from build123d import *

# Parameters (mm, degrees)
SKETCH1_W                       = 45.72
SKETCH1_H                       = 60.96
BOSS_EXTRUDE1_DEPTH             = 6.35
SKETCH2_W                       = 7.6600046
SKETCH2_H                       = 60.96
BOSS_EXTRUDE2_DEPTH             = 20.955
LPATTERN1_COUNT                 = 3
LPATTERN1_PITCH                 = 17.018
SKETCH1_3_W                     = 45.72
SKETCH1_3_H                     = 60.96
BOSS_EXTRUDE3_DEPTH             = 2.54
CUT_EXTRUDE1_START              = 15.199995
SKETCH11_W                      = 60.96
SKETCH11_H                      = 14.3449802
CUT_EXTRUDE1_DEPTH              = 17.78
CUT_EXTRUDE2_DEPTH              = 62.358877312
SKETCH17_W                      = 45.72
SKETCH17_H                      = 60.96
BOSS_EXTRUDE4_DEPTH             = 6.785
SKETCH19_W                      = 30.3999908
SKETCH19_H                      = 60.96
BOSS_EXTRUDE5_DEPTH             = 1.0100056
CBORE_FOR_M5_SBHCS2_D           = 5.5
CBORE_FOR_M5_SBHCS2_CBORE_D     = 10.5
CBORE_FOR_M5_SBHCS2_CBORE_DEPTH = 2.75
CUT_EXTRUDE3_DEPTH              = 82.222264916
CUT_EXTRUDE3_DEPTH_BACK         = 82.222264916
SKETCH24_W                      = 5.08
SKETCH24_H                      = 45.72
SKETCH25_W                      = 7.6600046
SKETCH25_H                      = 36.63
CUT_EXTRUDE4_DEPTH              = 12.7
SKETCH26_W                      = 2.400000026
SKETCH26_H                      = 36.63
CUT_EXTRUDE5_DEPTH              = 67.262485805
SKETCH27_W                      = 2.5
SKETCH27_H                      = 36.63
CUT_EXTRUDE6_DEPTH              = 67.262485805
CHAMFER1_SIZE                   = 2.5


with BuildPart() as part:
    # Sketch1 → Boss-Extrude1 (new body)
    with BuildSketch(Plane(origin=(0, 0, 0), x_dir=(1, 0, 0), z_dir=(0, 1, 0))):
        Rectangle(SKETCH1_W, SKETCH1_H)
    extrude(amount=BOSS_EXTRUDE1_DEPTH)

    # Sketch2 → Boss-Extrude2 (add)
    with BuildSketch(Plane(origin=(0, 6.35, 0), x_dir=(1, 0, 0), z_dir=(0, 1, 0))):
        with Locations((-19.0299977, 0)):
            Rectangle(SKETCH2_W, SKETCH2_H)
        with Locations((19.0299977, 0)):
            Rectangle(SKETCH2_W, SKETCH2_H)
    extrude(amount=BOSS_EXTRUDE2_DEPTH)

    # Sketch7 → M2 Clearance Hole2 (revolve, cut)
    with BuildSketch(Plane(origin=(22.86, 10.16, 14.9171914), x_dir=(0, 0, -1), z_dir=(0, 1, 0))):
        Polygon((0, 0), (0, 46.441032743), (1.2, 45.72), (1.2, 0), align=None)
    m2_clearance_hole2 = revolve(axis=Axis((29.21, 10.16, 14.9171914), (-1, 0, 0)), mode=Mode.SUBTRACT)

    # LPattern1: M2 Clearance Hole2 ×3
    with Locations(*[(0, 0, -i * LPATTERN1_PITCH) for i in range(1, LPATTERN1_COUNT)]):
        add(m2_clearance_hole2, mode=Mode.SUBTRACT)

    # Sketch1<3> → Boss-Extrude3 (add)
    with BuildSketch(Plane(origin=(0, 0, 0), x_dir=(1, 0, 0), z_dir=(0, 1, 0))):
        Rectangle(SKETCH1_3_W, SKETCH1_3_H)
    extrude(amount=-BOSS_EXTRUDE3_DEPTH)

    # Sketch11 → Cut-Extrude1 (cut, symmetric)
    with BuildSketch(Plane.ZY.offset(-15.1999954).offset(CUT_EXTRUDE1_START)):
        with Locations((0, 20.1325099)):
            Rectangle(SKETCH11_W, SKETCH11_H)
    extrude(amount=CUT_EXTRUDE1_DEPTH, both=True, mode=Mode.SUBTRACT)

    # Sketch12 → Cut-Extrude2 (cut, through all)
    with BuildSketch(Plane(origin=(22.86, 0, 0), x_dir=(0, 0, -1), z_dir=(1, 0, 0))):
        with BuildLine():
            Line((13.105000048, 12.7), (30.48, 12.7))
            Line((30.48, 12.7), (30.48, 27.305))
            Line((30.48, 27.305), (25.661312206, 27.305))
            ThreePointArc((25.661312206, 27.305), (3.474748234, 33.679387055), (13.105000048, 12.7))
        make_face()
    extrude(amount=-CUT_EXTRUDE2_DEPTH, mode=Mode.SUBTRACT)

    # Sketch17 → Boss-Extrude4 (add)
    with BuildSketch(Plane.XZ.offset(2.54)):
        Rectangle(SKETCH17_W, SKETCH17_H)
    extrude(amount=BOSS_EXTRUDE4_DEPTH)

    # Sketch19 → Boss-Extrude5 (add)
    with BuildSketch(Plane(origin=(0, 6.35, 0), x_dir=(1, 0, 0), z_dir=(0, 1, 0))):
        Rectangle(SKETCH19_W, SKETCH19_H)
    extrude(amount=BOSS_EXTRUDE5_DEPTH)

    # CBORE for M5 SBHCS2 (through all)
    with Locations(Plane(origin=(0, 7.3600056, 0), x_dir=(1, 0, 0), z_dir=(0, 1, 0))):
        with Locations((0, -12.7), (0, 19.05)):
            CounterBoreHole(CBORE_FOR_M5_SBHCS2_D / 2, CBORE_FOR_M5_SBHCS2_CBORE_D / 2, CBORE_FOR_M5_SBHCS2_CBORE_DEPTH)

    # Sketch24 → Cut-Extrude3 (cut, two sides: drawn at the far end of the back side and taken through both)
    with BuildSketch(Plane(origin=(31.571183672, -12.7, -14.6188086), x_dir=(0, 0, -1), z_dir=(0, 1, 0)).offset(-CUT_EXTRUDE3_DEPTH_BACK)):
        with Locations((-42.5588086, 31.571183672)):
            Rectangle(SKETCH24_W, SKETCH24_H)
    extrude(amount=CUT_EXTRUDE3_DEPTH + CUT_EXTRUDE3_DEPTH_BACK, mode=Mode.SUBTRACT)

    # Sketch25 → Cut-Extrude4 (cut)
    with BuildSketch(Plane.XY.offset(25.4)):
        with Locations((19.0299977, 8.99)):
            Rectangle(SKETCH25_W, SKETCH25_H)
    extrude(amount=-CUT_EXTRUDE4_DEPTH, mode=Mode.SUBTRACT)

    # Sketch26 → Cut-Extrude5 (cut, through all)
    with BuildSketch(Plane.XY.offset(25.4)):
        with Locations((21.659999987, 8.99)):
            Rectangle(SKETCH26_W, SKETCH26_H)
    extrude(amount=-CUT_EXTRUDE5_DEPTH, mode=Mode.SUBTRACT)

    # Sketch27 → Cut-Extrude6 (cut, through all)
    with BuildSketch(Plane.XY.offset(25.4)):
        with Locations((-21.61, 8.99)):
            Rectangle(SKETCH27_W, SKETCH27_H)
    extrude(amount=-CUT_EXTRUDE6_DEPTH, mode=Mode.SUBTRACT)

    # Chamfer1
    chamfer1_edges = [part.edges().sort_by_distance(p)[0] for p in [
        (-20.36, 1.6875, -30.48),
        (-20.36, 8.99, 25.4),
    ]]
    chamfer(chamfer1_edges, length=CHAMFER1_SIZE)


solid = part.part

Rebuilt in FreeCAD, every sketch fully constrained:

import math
import FreeCAD as App
import Part
import Sketcher
from FreeCAD import Vector
Q = App.Units.Quantity


def edges_at(feature, points):
    """Names of the edges that pass closest to the given points."""
    edges = feature.Shape.Edges
    near = lambda p: min(range(len(edges)), key=lambda i: edges[i].distToShape(Part.Vertex(*p))[0])
    return sorted({f"Edge{near(p) + 1}" for p in points})


def add_polygon(sketch, points):
    """Adds a closed chain of lines whose ends are joined by coincident constraints."""
    first, n = sketch.GeometryCount, len(points)
    for a, b in zip(points, points[1:] + points[:1]):
        sketch.addGeometry(Part.LineSegment(App.Vector(*a, 0), App.Vector(*b, 0)), False)
    for i in range(n):
        sketch.addConstraint(Sketcher.Constraint("Coincident", first + i, 2, first + (i + 1) % n, 1))

doc = App.newDocument("Part")
params = doc.addObject("Spreadsheet::Sheet", "Params")
for row, (alias, value) in enumerate([
    ("sketch1_width", "1.8 in"),
    ("sketch1_height", "2.4 in"),
    ("pad1_length", "0.25 in"),
    ("sketch2_height", "2.4 in"),
    ("pad2_length", "0.825 in"),
    ("sketch3_width", "1.8 in"),
    ("groove_angle", "360 deg"),
    ("linearpattern_pitch", "0.67 in"),
    ("sketch4_width", "1.8 in"),
    ("sketch4_height", "2.4 in"),
    ("pad3_length", "0.1 in"),
    ("sketch5_height", "2.4 in"),
    ("pocket1_length", "1.4 in"),
    ("sketch6_radius", "0.5 in"),
    ("sketch6_width", "0.575 in"),
    ("sketch7_width", "1.8 in"),
    ("sketch7_height", "2.4 in"),
    ("pad4_length", "6.785 mm"),
    ("sketch8_height", "2.4 in"),
    ("pad5_length", "1.010006 mm"),
    ("hole_diameter", "5.5 mm"),
    ("hole_cbore_diameter", "10.5 mm"),
    ("hole_cbore_depth", "2.75 mm"),
    ("sketch10_width", "1.8 in"),
    ("sketch10_height", "0.2 in"),
    ("pocket4_length", "0.5 in"),
    ("chamfer_size", "2.5 mm"),
], start=1):
    params.set(f"A{row}", alias)
    params.set(f"B{row}", "=" + value)
    params.setAlias(f"B{row}", alias)

body = doc.addObject("PartDesign::Body", "Body")

# Sketch on XZ plane
sketch1 = body.newObject("Sketcher::SketchObject", "Sketch")
sketch1.AttachmentSupport = (doc.getObject("XZ_Plane"), [""])
sketch1.MapMode = "FlatFace"
add_polygon(sketch1, [(-23, -30), (-23, 30), (23, 30), (23, -30)])  # lines 0-3
sketch1.addConstraint([
    Sketcher.Constraint("Vertical", 0),
    Sketcher.Constraint("Horizontal", 1),
    Sketcher.Constraint("Vertical", 2),
    Sketcher.Constraint("Horizontal", 3),
    Sketcher.Constraint("Symmetric", 0, 2, 2, 2, -1, 1),
    Sketcher.Constraint("DistanceX", 1, 1, 1, 2, Q("1.8 in")),
    Sketcher.Constraint("DistanceY", 0, 1, 0, 2, Q("2.4 in")),
])
sketch1.setExpression("Constraints[9]", "Params.sketch1_width")
sketch1.setExpression("Constraints[10]", "Params.sketch1_height")
pad1 = body.newObject("PartDesign::Pad", "Pad")
pad1.Profile = sketch1
pad1.setExpression("Length", "Params.pad1_length")
pad1.Reversed = True

# Sketch on XZ plane
sketch2 = body.newObject("Sketcher::SketchObject", "Sketch001")
sketch2.AttachmentSupport = (doc.getObject("XZ_Plane"), [""])
sketch2.MapMode = "FlatFace"
sketch2.AttachmentOffset = App.Placement(Vector(0, 0, -0.25 * 25.4), App.Rotation())
add_polygon(sketch2, [(-23, -30), (-23, 30), (-15, 30), (-15, -30)])  # lines 0-3
add_polygon(sketch2, [(15, -30), (15, 30), (23, 30), (23, -30)])  # lines 4-7
sketch2.addConstraint([
    Sketcher.Constraint("Vertical", 0),
    Sketcher.Constraint("Horizontal", 1),
    Sketcher.Constraint("Vertical", 2),
    Sketcher.Constraint("Horizontal", 3),
    Sketcher.Constraint("Vertical", 4),
    Sketcher.Constraint("Horizontal", 5),
    Sketcher.Constraint("Vertical", 6),
    Sketcher.Constraint("Horizontal", 7),
    Sketcher.Constraint("Symmetric", 2, 2, 4, 2, -1, 1),
    Sketcher.Constraint("Symmetric", 0, 2, 6, 2, -1, 1),
    Sketcher.Constraint("Horizontal", 1, 2, 4, 2),
    Sketcher.Constraint("DistanceY", 0, 1, 0, 2, Q("2.4 in")),
    Sketcher.Constraint("DistanceX", 0, 2, -1, 1, Q("0.9 in")),
    Sketcher.Constraint("DistanceX", 1, 1, 1, 2, 7.660005),
])
sketch2.setExpression("Constraints[19]", "Params.sketch2_height")
pad2 = body.newObject("PartDesign::Pad", "Pad001")
pad2.Profile = sketch2
pad2.setExpression("Length", "Params.pad2_length")
pad2.Reversed = True

# Sketch on XZ plane
sketch3 = body.newObject("Sketcher::SketchObject", "Sketch002")
sketch3.AttachmentSupport = (doc.getObject("XZ_Plane"), [""])
sketch3.MapMode = "FlatFace"
sketch3.AttachmentOffset = App.Placement(Vector(0, 0, -0.4 * 25.4), App.Rotation())
add_polygon(sketch3, [(-23.6, 14.9), (22.9, 14.9), (22.9, 13.7), (-22.9, 13.7)])  # lines 0-3
sketch3.addGeometry(Part.LineSegment(Vector(22.9, 14.9, 0), Vector(-23.6, 14.9, 0)), True)  # axis
sketch3.addConstraint([
    Sketcher.Constraint("Horizontal", 0),
    Sketcher.Constraint("Vertical", 1),
    Sketcher.Constraint("Horizontal", 2),
    Sketcher.Constraint("Horizontal", 4),
    Sketcher.Constraint("Coincident", 4, 1, 0, 2),
    Sketcher.Constraint("Equal", 0, 4),
    Sketcher.Constraint("DistanceX", 2, 2, 2, 1, Q("1.8 in")),
    Sketcher.Constraint("Angle", 3, Q("121 deg")),
    Sketcher.Constraint("DistanceX", -1, 1, 0, 2, Q("0.9 in")),
    Sketcher.Constraint("DistanceY", 1, 2, 1, 1, 1.2),
    Sketcher.Constraint("DistanceY", -1, 1, 0, 2, 14.917191),
])
sketch3.setExpression("Constraints[10]", "Params.sketch3_width")
groove = body.newObject("PartDesign::Groove", "Groove")
groove.Profile = sketch3
groove.ReferenceAxis = (sketch3, ["Axis0"])
groove.setExpression("Angle", "Params.groove_angle")
doc.recompute()

linearpattern = body.newObject("PartDesign::LinearPattern", "LinearPattern")
linearpattern.Originals = [groove]
linearpattern.Direction = (doc.getObject("Z_Axis"), [""])
linearpattern.Mode = "offset"
linearpattern.setExpression("Offset", "Params.linearpattern_pitch")
linearpattern.Occurrences = 3
linearpattern.Reversed = True
body.Tip = linearpattern

# Sketch on XZ plane
sketch4 = body.newObject("Sketcher::SketchObject", "Sketch003")
sketch4.AttachmentSupport = (doc.getObject("XZ_Plane"), [""])
sketch4.MapMode = "FlatFace"
add_polygon(sketch4, [(-23, -30), (-23, 30), (23, 30), (23, -30)])  # lines 0-3
sketch4.addConstraint([
    Sketcher.Constraint("Vertical", 0),
    Sketcher.Constraint("Horizontal", 1),
    Sketcher.Constraint("Vertical", 2),
    Sketcher.Constraint("Horizontal", 3),
    Sketcher.Constraint("Symmetric", 0, 2, 2, 2, -1, 1),
    Sketcher.Constraint("DistanceX", 1, 1, 1, 2, Q("1.8 in")),
    Sketcher.Constraint("DistanceY", 0, 1, 0, 2, Q("2.4 in")),
])
sketch4.setExpression("Constraints[9]", "Params.sketch4_width")
sketch4.setExpression("Constraints[10]", "Params.sketch4_height")
pad3 = body.newObject("PartDesign::Pad", "Pad002")
pad3.Profile = sketch4
pad3.setExpression("Length", "Params.pad3_length")

# Sketch on YZ plane
sketch5 = body.newObject("Sketcher::SketchObject", "Sketch004")
sketch5.AttachmentSupport = (doc.getObject("YZ_Plane"), [""])
sketch5.MapMode = "FlatFace"
sketch5.AttachmentOffset = App.Placement(Vector(0, 0, 0 * 25.4), App.Rotation())
add_polygon(sketch5, [(27, -30), (13, -30), (13, 30), (27, 30)])  # lines 0-3
sketch5.addConstraint([
    Sketcher.Constraint("Horizontal", 0),
    Sketcher.Constraint("Vertical", 1),
    Sketcher.Constraint("Horizontal", 2),
    Sketcher.Constraint("Vertical", 3),
    Sketcher.Constraint("DistanceY", 1, 1, 1, 2, Q("2.4 in")),
    Sketcher.Constraint("DistanceY", 0, 2, -1, 1, Q("1.2 in")),
    Sketcher.Constraint("DistanceX", -1, 1, 2, 2, Q("1.075 in")),
    Sketcher.Constraint("DistanceX", 0, 2, 0, 1, 14.34498),
])
sketch5.setExpression("Constraints[8]", "Params.sketch5_height")
pocket1 = body.newObject("PartDesign::Pocket", "Pocket")
pocket1.Profile = sketch5
pocket1.setExpression("Length", "Params.pocket1_length")
pocket1.Midplane = True

# Sketch on YZ plane
sketch6 = body.newObject("Sketcher::SketchObject", "Sketch005")
sketch6.AttachmentSupport = (doc.getObject("YZ_Plane"), [""])
sketch6.MapMode = "FlatFace"
sketch6.AttachmentOffset = App.Placement(Vector(0, 0, 0.9 * 25.4), App.Rotation())
sketch6.addGeometry([
    Part.LineSegment(Vector(12.7, -13.1, 0), Vector(12.7, -30.5, 0)),
    Part.LineSegment(Vector(12.7, -30.5, 0), Vector(27.3, -30.5, 0)),
    Part.LineSegment(Vector(27.3, -30.5, 0), Vector(27.3, -25.7, 0)),
    Part.ArcOfCircle(Part.Circle(Vector(25.4, -13.1, 0), Vector(0, 0, 1), 12.7), math.radians(-81), math.radians(180)),
], False)
sketch6.addConstraint([
    Sketcher.Constraint("Coincident", 0, 2, 1, 1),
    Sketcher.Constraint("Coincident", 1, 2, 2, 1),
    Sketcher.Constraint("Coincident", 2, 2, 3, 1),
    Sketcher.Constraint("Tangent", 3, 2, 0, 1),
    Sketcher.Constraint("Vertical", 0),
    Sketcher.Constraint("Horizontal", 1),
    Sketcher.Constraint("Vertical", 2),
    Sketcher.Constraint("Radius", 3, Q("0.5 in")),
    Sketcher.Constraint("DistanceX", -1, 1, 3, 3, Q("1 in")),
    Sketcher.Constraint("DistanceY", 0, 2, -1, 1, Q("1.2 in")),
    Sketcher.Constraint("DistanceX", 1, 1, 1, 2, Q("0.575 in")),
    Sketcher.Constraint("DistanceY", 0, 2, 0, 1, 17.375),
])
sketch6.setExpression("Constraints[7]", "Params.sketch6_radius")
sketch6.setExpression("Constraints[10]", "Params.sketch6_width")
pocket2 = body.newObject("PartDesign::Pocket", "Pocket001")
pocket2.Profile = sketch6
pocket2.Type = "ThroughAll"

# Sketch on XZ plane
sketch7 = body.newObject("Sketcher::SketchObject", "Sketch006")
sketch7.AttachmentSupport = (doc.getObject("XZ_Plane"), [""])
sketch7.MapMode = "FlatFace"
sketch7.AttachmentOffset = App.Placement(Vector(0, 0, 0.1 * 25.4), App.Rotation())
add_polygon(sketch7, [(-23, 30), (-23, -30), (23, -30), (23, 30)])  # lines 0-3
sketch7.addConstraint([
    Sketcher.Constraint("Vertical", 0),
    Sketcher.Constraint("Horizontal", 1),
    Sketcher.Constraint("Vertical", 2),
    Sketcher.Constraint("Horizontal", 3),
    Sketcher.Constraint("Symmetric", 0, 2, 2, 2, -1, 1),
    Sketcher.Constraint("DistanceX", 1, 1, 1, 2, Q("1.8 in")),
    Sketcher.Constraint("DistanceY", 0, 2, 0, 1, Q("2.4 in")),
])
sketch7.setExpression("Constraints[9]", "Params.sketch7_width")
sketch7.setExpression("Constraints[10]", "Params.sketch7_height")
pad4 = body.newObject("PartDesign::Pad", "Pad003")
pad4.Profile = sketch7
pad4.setExpression("Length", "Params.pad4_length")

# Sketch on XZ plane
sketch8 = body.newObject("Sketcher::SketchObject", "Sketch007")
sketch8.AttachmentSupport = (doc.getObject("XZ_Plane"), [""])
sketch8.MapMode = "FlatFace"
sketch8.AttachmentOffset = App.Placement(Vector(0, 0, -0.25 * 25.4), App.Rotation())
add_polygon(sketch8, [(-15, -30), (-15, 30), (15, 30), (15, -30)])  # lines 0-3
sketch8.addConstraint([
    Sketcher.Constraint("Vertical", 0),
    Sketcher.Constraint("Horizontal", 1),
    Sketcher.Constraint("Vertical", 2),
    Sketcher.Constraint("Horizontal", 3),
    Sketcher.Constraint("Symmetric", 0, 2, 2, 2, -1, 1),
    Sketcher.Constraint("DistanceY", 0, 1, 0, 2, Q("2.4 in")),
    Sketcher.Constraint("DistanceX", 1, 1, 1, 2, 30.399991),
])
sketch8.setExpression("Constraints[9]", "Params.sketch8_height")
pad5 = body.newObject("PartDesign::Pad", "Pad004")
pad5.Profile = sketch8
pad5.setExpression("Length", "Params.pad5_length")
pad5.Reversed = True

# Sketch on XZ plane
sketch9 = body.newObject("Sketcher::SketchObject", "Sketch008")
sketch9.AttachmentSupport = (doc.getObject("XZ_Plane"), [""])
sketch9.MapMode = "FlatFace"
sketch9.AttachmentOffset = App.Placement(Vector(0, 0, -7.360006), App.Rotation())
sketch9.addGeometry([
    Part.Circle(Vector(0, 12.7, 0), Vector(0, 0, 1), 2.8),
    Part.Circle(Vector(0, -19.1, 0), Vector(0, 0, 1), 2.8),
], False)
sketch9.addConstraint([
    Sketcher.Constraint("Equal", 0, 1),
    Sketcher.Constraint("PointOnObject", 0, 3, -2),
    Sketcher.Constraint("PointOnObject", 1, 3, -2),
    Sketcher.Constraint("DistanceY", -1, 1, 0, 3, Q("0.5 in")),
    Sketcher.Constraint("Diameter", 0, 5.5),
    Sketcher.Constraint("DistanceY", 1, 3, -1, 1, Q("0.75 in")),
])
doc.recompute()
hole = body.newObject("PartDesign::Hole", "Hole")
hole.Profile = sketch9
hole.ThreadType = "None"
hole.setExpression("Diameter", "Params.hole_diameter")
hole.DepthType = "ThroughAll"
hole.HoleCutType = "Counterbore"
hole.setExpression("HoleCutDiameter", "Params.hole_cbore_diameter")
hole.setExpression("HoleCutDepth", "Params.hole_cbore_depth")
hole.Reversed = True

# Sketch on XZ plane
sketch10 = body.newObject("Sketcher::SketchObject", "Sketch009")
sketch10.AttachmentSupport = (doc.getObject("XZ_Plane"), [""])
sketch10.MapMode = "FlatFace"
sketch10.AttachmentOffset = App.Placement(Vector(0, 0, 0.5 * 25.4), App.Rotation())
add_polygon(sketch10, [(-23, 30), (23, 30), (23, 25), (-23, 25)])  # lines 0-3
sketch10.addConstraint([
    Sketcher.Constraint("Horizontal", 0),
    Sketcher.Constraint("Vertical", 1),
    Sketcher.Constraint("Horizontal", 2),
    Sketcher.Constraint("Vertical", 3),
    Sketcher.Constraint("DistanceX", 0, 1, 0, 2, Q("1.8 in")),
    Sketcher.Constraint("DistanceY", 1, 2, 1, 1, Q("0.2 in")),
    Sketcher.Constraint("DistanceY", -1, 1, 1, 2, Q("1 in")),
    Sketcher.Constraint("DistanceX", -1, 1, 0, 2, Q("0.9 in")),
])
sketch10.setExpression("Constraints[8]", "Params.sketch10_width")
sketch10.setExpression("Constraints[9]", "Params.sketch10_height")
pocket3 = body.newObject("PartDesign::Pocket", "Pocket002")
pocket3.Profile = sketch10
pocket3.Type = "ThroughAll"
pocket3.Midplane = True

# Sketch on XY plane
sketch11 = body.newObject("Sketcher::SketchObject", "Sketch010")
sketch11.AttachmentSupport = (doc.getObject("XY_Plane"), [""])
sketch11.MapMode = "FlatFace"
sketch11.AttachmentOffset = App.Placement(Vector(0, 0, 1 * 25.4), App.Rotation())
add_polygon(sketch11, [(15, 27), (15, -9), (23, -9), (23, 27)])  # lines 0-3
sketch11.addConstraint([
    Sketcher.Constraint("Vertical", 0),
    Sketcher.Constraint("Horizontal", 1),
    Sketcher.Constraint("Vertical", 2),
    Sketcher.Constraint("Horizontal", 3),
    Sketcher.Constraint("DistanceX", -1, 1, 1, 2, Q("0.9 in")),
    Sketcher.Constraint("DistanceY", -1, 1, 2, 2, Q("1.075 in")),
    Sketcher.Constraint("DistanceY", 0, 2, 0, 1, 36.63),
    Sketcher.Constraint("DistanceX", 1, 1, 1, 2, 7.660005),
])
pocket4 = body.newObject("PartDesign::Pocket", "Pocket003")
pocket4.Profile = sketch11
pocket4.setExpression("Length", "Params.pocket4_length")

# Sketch on XY plane
sketch12 = body.newObject("Sketcher::SketchObject", "Sketch011")
sketch12.AttachmentSupport = (doc.getObject("XY_Plane"), [""])
sketch12.MapMode = "FlatFace"
sketch12.AttachmentOffset = App.Placement(Vector(0, 0, 1 * 25.4), App.Rotation())
add_polygon(sketch12, [(20.5, 27.3), (20.5, -9.3), (22.9, -9.3), (22.9, 27.3)])  # lines 0-3
sketch12.addConstraint([
    Sketcher.Constraint("Vertical", 0),
    Sketcher.Constraint("Horizontal", 1),
    Sketcher.Constraint("Vertical", 2),
    Sketcher.Constraint("Horizontal", 3),
    Sketcher.Constraint("DistanceX", -1, 1, 1, 2, Q("0.9 in")),
    Sketcher.Constraint("DistanceY", -1, 1, 2, 2, Q("1.075 in")),
    Sketcher.Constraint("DistanceX", 1, 1, 1, 2, 2.4),
    Sketcher.Constraint("DistanceY", 0, 2, 0, 1, 36.63),
])
pocket5 = body.newObject("PartDesign::Pocket", "Pocket004")
pocket5.Profile = sketch12
pocket5.Type = "ThroughAll"

# Sketch on XY plane
sketch13 = body.newObject("Sketcher::SketchObject", "Sketch012")
sketch13.AttachmentSupport = (doc.getObject("XY_Plane"), [""])
sketch13.MapMode = "FlatFace"
sketch13.AttachmentOffset = App.Placement(Vector(0, 0, 1 * 25.4), App.Rotation())
add_polygon(sketch13, [(-22.9, 27.3), (-22.9, -9.3), (-20.4, -9.3), (-20.4, 27.3)])  # lines 0-3
sketch13.addConstraint([
    Sketcher.Constraint("Vertical", 0),
    Sketcher.Constraint("Horizontal", 1),
    Sketcher.Constraint("Vertical", 2),
    Sketcher.Constraint("Horizontal", 3),
    Sketcher.Constraint("DistanceX", 0, 2, -1, 1, Q("0.9 in")),
    Sketcher.Constraint("DistanceY", -1, 1, 2, 2, Q("1.075 in")),
    Sketcher.Constraint("DistanceX", 1, 1, 1, 2, 2.5),
    Sketcher.Constraint("DistanceY", 0, 2, 0, 1, 36.63),
])
pocket6 = body.newObject("PartDesign::Pocket", "Pocket005")
pocket6.Profile = sketch13
pocket6.Type = "ThroughAll"
doc.recompute()

chamfer = body.newObject("PartDesign::Chamfer", "Chamfer")
chamfer.Base = (pocket6, edges_at(pocket6, [(-20.36, 1.688, -30.48), (-20.36, 8.99, 25.4)]))
chamfer.setExpression("Size", "Params.chamfer_size")

doc.recompute()
